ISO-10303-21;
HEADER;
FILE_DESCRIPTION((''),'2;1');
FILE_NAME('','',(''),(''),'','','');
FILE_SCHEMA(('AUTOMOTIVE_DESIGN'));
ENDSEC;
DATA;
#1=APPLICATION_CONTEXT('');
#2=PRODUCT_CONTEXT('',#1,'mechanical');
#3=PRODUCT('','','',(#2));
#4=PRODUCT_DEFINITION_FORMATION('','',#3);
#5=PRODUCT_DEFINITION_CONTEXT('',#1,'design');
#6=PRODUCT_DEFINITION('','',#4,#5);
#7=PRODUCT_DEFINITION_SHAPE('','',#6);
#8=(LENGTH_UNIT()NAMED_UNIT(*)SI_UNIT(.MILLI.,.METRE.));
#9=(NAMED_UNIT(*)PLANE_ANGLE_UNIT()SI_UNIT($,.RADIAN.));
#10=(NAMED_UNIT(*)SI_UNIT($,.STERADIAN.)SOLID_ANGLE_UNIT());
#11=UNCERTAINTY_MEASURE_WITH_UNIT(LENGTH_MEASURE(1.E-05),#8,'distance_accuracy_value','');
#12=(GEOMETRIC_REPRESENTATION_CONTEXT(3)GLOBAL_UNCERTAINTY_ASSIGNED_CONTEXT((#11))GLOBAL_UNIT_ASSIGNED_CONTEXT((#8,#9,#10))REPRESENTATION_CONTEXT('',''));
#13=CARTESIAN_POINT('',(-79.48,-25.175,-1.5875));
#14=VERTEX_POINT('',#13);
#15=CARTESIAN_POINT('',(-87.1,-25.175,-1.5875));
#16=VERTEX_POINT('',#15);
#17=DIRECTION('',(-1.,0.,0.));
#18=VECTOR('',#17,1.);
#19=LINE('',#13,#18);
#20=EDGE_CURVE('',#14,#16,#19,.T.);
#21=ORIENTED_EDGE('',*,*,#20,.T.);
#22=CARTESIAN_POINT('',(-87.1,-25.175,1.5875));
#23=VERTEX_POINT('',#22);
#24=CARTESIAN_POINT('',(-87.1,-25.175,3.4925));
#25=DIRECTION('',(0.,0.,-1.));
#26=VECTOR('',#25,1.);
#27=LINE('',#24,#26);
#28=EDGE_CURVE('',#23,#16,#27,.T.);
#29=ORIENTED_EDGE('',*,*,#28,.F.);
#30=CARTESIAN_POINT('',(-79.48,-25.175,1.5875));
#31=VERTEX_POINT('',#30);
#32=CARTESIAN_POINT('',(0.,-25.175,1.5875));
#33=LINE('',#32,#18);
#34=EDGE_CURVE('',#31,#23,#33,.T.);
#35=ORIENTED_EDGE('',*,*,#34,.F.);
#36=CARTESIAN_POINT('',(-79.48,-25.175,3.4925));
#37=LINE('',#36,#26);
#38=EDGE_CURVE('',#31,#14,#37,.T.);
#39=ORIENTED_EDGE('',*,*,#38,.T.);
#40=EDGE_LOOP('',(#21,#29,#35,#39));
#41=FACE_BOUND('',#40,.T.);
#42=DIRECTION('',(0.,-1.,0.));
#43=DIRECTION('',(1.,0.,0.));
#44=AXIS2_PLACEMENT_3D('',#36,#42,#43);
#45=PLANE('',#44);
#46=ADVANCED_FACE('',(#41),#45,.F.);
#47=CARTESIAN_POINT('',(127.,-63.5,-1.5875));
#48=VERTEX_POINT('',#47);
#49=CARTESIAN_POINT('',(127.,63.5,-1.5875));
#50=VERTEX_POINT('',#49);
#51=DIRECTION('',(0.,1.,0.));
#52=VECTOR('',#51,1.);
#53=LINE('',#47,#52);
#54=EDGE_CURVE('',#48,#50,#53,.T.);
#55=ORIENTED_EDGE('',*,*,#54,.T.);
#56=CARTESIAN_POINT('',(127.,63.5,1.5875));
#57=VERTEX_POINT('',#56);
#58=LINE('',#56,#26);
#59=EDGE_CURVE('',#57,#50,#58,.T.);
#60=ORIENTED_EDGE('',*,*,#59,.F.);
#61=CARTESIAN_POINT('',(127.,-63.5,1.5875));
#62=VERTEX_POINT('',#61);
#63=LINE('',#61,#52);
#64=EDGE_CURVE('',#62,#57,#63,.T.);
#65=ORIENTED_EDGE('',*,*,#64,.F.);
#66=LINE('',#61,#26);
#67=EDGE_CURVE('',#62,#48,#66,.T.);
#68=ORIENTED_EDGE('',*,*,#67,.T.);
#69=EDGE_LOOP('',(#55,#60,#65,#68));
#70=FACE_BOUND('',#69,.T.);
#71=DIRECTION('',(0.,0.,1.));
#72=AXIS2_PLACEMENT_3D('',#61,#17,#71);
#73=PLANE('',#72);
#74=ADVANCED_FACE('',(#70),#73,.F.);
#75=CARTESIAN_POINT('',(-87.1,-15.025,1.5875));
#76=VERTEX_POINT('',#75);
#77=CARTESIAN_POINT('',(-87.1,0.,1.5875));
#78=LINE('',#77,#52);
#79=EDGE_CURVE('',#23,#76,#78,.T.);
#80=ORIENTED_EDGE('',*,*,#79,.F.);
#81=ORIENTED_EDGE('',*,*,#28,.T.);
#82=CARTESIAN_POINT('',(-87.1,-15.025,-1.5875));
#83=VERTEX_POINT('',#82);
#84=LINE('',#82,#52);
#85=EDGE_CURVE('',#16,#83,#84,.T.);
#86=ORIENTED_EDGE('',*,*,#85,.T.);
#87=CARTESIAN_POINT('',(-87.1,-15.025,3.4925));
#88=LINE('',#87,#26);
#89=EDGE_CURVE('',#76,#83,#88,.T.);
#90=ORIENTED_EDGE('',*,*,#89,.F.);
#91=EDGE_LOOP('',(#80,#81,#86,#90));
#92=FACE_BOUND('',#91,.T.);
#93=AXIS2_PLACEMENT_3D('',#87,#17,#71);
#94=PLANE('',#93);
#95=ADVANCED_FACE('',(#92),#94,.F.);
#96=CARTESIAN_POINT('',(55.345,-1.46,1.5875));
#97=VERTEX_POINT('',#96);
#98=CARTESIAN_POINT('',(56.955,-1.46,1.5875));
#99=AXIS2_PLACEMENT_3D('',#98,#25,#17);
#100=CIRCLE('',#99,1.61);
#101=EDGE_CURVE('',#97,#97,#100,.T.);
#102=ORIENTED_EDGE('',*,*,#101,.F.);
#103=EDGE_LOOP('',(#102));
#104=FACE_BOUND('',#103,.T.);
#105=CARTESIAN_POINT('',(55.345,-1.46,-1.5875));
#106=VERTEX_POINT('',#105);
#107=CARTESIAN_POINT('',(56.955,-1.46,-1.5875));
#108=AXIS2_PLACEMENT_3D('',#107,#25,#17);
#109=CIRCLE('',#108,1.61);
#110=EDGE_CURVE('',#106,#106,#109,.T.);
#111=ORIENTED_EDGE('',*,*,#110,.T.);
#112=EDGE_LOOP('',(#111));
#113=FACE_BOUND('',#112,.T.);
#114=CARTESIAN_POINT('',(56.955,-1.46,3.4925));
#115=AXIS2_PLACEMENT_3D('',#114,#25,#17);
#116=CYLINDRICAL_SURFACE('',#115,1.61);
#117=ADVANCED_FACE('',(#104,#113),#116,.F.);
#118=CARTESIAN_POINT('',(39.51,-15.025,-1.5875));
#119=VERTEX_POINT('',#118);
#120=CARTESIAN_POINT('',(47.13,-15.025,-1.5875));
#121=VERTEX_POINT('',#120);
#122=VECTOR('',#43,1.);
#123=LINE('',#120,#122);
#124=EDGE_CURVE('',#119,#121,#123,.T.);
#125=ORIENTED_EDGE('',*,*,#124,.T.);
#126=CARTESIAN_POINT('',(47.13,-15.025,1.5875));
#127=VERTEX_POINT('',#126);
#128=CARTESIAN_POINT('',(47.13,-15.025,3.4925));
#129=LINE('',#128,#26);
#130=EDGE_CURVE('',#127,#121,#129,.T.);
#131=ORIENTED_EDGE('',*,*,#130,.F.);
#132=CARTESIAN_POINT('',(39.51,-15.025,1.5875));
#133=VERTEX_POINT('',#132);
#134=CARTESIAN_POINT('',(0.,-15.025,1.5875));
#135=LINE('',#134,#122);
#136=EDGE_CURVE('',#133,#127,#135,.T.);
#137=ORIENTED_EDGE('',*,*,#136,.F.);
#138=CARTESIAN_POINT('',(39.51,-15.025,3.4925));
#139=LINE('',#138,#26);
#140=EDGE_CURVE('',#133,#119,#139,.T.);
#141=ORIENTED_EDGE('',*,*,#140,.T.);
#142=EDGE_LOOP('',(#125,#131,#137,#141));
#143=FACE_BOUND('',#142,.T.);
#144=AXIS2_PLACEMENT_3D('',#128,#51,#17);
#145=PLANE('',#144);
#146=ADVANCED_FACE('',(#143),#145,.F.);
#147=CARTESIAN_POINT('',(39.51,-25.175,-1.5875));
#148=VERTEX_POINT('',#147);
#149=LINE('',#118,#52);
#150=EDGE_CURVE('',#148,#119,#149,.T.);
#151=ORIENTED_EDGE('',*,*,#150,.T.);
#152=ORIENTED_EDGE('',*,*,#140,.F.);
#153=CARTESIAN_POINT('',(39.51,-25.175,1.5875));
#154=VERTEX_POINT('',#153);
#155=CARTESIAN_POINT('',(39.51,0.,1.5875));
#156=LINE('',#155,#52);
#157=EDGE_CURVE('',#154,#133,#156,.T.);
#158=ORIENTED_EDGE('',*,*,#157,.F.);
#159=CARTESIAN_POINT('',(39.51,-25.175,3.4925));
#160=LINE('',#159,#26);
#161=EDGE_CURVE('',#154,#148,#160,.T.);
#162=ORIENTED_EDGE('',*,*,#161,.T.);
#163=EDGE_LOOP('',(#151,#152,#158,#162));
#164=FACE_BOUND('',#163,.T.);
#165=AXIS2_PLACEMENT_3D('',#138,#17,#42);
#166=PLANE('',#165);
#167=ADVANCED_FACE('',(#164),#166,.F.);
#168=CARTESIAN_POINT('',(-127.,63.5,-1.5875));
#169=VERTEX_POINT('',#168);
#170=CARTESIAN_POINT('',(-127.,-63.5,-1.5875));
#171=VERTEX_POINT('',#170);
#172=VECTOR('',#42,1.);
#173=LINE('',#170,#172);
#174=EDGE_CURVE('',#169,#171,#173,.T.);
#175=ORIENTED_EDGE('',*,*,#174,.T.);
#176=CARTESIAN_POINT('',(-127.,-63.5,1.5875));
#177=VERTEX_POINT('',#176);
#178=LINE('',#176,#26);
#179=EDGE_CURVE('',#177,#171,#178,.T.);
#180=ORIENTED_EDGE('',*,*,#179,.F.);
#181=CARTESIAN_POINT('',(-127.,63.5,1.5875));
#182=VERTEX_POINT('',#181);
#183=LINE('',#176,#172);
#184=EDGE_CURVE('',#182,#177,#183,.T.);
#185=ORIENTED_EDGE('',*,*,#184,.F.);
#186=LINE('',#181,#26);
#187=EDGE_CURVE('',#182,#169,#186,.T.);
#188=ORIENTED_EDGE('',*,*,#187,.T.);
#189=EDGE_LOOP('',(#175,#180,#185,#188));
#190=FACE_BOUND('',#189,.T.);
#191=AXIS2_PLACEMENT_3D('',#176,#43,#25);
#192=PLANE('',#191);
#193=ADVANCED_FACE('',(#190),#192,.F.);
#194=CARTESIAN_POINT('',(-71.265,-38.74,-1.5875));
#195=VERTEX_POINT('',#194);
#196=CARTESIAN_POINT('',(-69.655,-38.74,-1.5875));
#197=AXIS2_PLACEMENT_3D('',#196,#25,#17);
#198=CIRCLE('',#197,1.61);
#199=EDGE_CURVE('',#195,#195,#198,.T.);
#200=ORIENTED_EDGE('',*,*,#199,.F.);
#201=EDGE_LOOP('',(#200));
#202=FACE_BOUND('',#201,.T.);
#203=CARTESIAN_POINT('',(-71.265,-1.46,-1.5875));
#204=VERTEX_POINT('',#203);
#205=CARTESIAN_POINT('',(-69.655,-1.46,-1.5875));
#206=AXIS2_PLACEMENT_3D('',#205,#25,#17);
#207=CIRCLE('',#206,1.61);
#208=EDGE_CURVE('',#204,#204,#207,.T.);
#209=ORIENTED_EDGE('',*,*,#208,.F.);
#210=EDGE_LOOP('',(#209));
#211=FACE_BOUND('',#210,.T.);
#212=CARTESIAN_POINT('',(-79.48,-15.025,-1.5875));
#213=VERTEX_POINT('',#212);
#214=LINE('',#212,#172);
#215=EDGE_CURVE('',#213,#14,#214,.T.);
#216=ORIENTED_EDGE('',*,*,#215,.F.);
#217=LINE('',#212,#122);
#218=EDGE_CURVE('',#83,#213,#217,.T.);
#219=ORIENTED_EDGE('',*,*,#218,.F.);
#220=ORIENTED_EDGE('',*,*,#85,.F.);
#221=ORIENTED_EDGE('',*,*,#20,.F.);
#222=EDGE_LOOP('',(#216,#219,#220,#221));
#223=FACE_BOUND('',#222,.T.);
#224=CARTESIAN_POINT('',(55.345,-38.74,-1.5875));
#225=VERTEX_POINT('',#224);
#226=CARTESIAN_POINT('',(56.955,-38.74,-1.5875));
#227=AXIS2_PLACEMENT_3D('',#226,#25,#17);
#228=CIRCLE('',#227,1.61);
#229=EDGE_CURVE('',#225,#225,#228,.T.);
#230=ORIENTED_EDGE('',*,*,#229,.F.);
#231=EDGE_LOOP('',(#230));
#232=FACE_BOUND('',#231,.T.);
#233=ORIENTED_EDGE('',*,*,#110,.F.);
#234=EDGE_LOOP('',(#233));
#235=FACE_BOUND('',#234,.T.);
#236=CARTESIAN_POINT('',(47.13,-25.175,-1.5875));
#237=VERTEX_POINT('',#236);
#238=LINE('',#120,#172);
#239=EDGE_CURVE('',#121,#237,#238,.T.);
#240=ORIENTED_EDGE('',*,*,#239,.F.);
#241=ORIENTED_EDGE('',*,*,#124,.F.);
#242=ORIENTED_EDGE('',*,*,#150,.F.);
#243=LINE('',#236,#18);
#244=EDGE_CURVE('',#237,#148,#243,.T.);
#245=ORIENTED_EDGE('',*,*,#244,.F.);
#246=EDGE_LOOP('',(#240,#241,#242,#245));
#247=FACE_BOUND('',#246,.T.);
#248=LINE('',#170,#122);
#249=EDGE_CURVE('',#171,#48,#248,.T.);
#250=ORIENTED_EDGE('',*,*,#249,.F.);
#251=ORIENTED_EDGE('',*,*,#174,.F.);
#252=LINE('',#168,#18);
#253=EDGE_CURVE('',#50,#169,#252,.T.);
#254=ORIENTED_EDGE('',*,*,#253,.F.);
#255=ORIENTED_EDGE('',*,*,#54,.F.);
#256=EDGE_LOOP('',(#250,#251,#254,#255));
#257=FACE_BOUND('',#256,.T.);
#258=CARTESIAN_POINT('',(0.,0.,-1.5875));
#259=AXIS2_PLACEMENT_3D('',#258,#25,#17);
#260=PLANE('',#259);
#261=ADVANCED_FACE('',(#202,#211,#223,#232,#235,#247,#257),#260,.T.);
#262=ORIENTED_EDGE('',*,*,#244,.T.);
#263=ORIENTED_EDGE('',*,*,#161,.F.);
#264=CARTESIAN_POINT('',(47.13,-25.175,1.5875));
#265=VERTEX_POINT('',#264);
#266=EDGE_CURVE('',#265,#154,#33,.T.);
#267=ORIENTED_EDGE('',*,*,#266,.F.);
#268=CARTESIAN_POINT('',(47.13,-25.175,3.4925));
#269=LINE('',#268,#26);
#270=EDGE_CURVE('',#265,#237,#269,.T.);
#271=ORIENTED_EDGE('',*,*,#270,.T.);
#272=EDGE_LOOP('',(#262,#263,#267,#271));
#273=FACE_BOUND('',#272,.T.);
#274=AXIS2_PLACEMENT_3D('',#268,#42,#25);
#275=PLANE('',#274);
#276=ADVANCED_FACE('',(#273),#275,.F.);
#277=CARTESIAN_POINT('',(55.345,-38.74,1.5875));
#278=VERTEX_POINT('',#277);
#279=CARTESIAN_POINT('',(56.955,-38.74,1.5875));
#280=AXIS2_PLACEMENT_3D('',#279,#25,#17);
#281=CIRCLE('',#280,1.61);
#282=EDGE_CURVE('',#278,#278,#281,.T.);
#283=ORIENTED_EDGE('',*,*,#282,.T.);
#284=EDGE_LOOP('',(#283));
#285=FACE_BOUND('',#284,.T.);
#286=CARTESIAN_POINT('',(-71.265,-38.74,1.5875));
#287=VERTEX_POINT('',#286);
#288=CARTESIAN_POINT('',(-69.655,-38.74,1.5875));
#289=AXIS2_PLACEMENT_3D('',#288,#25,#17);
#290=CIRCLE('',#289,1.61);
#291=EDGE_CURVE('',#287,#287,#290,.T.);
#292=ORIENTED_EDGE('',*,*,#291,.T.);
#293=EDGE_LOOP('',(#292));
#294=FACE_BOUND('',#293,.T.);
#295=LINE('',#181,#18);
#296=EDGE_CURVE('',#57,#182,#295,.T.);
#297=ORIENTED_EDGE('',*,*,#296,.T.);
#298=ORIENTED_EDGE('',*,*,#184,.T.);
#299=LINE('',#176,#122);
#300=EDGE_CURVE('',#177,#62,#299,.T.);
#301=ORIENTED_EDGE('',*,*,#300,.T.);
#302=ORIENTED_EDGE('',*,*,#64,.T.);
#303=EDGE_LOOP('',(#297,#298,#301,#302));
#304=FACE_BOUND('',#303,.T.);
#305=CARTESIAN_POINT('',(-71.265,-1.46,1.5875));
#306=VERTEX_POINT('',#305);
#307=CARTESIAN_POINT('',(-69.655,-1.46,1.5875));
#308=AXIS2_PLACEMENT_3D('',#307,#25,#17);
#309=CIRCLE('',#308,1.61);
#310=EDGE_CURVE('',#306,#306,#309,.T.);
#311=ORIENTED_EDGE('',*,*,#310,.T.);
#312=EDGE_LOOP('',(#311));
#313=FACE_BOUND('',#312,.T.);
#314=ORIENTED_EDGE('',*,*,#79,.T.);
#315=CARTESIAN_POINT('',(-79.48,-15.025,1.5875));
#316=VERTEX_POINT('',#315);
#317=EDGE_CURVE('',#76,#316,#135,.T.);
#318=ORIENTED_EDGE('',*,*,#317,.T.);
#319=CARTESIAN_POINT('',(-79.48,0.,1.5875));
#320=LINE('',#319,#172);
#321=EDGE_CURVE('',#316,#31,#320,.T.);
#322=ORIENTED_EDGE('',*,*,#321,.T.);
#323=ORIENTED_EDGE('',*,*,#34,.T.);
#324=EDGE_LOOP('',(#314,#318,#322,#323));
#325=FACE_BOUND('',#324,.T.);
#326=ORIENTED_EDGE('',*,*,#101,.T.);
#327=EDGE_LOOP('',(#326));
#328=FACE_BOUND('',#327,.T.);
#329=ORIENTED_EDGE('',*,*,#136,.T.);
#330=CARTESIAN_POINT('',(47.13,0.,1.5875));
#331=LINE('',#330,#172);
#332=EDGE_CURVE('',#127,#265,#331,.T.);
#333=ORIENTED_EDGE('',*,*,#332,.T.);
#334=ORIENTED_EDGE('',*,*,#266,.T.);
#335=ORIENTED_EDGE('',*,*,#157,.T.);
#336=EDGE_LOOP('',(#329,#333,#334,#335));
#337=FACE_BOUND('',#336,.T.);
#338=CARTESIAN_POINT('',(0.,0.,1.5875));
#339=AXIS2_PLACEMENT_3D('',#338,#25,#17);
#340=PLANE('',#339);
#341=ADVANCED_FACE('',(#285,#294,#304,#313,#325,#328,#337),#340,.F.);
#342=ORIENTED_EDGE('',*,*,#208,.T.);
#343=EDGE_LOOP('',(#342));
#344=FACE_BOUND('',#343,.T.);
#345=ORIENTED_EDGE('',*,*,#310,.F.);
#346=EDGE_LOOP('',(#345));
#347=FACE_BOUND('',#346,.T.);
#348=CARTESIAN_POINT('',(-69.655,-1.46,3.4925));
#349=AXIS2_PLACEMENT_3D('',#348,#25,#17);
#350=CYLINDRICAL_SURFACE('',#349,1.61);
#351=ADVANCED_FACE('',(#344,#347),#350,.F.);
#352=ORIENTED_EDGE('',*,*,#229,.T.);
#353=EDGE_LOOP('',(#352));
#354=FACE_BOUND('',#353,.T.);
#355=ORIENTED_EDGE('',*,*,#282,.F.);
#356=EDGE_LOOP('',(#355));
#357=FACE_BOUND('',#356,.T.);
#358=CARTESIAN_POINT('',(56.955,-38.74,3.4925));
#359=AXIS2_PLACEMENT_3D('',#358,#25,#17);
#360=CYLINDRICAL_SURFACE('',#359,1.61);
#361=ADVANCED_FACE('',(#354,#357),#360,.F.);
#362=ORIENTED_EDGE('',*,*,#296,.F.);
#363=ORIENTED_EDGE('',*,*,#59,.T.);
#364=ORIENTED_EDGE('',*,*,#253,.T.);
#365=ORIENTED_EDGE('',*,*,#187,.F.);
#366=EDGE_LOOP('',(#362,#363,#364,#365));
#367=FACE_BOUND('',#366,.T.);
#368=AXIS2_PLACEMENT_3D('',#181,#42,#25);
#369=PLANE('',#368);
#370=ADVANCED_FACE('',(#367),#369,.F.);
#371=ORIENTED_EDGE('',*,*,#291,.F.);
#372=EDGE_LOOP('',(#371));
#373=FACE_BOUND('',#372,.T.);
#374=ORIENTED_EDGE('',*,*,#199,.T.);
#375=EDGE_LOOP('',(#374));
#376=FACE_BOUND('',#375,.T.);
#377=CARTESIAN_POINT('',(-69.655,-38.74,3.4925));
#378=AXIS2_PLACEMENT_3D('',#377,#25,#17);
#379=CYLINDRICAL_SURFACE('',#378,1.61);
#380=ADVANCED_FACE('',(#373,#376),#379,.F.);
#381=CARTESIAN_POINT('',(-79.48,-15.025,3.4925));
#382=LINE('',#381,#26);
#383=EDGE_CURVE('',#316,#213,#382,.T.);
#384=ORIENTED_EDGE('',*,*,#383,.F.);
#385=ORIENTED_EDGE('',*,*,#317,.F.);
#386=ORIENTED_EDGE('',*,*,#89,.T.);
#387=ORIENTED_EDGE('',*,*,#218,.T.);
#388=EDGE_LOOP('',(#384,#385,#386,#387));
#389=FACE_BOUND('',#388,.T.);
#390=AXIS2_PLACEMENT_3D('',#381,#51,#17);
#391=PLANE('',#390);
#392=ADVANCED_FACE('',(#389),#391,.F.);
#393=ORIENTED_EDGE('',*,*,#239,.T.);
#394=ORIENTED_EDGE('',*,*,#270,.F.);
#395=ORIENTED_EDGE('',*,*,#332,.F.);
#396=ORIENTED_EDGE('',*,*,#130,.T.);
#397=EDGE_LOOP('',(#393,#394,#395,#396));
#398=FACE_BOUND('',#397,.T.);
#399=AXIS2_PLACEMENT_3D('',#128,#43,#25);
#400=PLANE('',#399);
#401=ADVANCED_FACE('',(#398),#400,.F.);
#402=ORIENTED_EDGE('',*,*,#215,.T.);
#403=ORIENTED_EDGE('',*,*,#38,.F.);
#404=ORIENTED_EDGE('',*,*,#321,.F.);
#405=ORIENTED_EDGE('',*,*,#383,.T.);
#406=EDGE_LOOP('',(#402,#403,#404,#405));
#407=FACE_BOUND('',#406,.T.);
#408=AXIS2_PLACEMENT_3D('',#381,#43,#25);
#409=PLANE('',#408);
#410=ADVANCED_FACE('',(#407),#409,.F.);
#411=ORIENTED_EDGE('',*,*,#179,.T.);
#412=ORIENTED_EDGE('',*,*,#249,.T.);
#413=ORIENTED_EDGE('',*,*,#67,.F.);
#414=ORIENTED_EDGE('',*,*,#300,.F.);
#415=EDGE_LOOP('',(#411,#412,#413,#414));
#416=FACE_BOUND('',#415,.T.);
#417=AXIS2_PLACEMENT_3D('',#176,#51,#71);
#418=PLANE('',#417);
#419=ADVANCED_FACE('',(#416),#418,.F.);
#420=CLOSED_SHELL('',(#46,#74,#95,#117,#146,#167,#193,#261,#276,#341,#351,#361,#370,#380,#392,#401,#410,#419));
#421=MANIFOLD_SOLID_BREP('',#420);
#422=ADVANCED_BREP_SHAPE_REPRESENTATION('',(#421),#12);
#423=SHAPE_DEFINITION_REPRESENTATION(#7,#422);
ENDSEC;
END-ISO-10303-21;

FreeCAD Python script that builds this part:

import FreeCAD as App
import Part
import Sketcher

V = App.Vector
Q = App.Units.Quantity

doc = App.newDocument("Part")
params = doc.addObject("Spreadsheet::Sheet", "Params")
for row, (alias, value) in enumerate([
    ("sketch1_width", "10 in"),
    ("sketch1_height", "5 in"),
    ("pad1_length", "0.125 in"),
    ("sketch2_width", "0.3 in"),
    ("pocket1_length", "0.2 in"),
], start=1):
    params.set(f"A{row}", alias)
    params.set(f"B{row}", "=" + value)
    params.setAlias(f"B{row}", alias)

body = doc.addObject("PartDesign::Body", "Body")

# Sketch on XY plane
sketch1 = body.newObject("Sketcher::SketchObject", "Sketch")
sketch1.AttachmentSupport = (doc.getObject("XY_Plane"), [""])
sketch1.MapMode = "FlatFace"
sketch1.addGeometry(Part.LineSegment(V(-127, 63.5, 0), V(-127, -63.5, 0)), False)
sketch1.addGeometry(Part.LineSegment(V(-127, -63.5, 0), V(127, -63.5, 0)), False)
sketch1.addGeometry(Part.LineSegment(V(127, -63.5, 0), V(127, 63.5, 0)), False)
sketch1.addGeometry(Part.LineSegment(V(127, 63.5, 0), V(-127, 63.5, 0)), False)
sketch1.addConstraint(Sketcher.Constraint("Coincident", 0, 2, 1, 1))
sketch1.addConstraint(Sketcher.Constraint("Coincident", 1, 2, 2, 1))
sketch1.addConstraint(Sketcher.Constraint("Coincident", 2, 2, 3, 1))
sketch1.addConstraint(Sketcher.Constraint("Coincident", 3, 2, 0, 1))
sketch1.addConstraint(Sketcher.Constraint("Vertical", 0))
sketch1.addConstraint(Sketcher.Constraint("Horizontal", 1))
sketch1.addConstraint(Sketcher.Constraint("Vertical", 2))
sketch1.addConstraint(Sketcher.Constraint("Horizontal", 3))
sketch1.addConstraint(Sketcher.Constraint("Symmetric", 0, 2, 2, 2, -1, 1))
sketch1.addConstraint(Sketcher.Constraint("DistanceX", 1, 1, 1, 2, Q("10 in")))
sketch1.addConstraint(Sketcher.Constraint("DistanceY", 0, 2, 0, 1, Q("5 in")))
sketch1.setExpression("Constraints[9]", "Params.sketch1_width")
sketch1.setExpression("Constraints[10]", "Params.sketch1_height")
pad1 = body.newObject("PartDesign::Pad", "Pad")
pad1.Profile = sketch1
pad1.setExpression("Length", "Params.pad1_length")
pad1.Midplane = True

# Sketch on XY plane
sketch2 = body.newObject("Sketcher::SketchObject", "Sketch001")
sketch2.AttachmentSupport = (doc.getObject("XY_Plane"), [""])
sketch2.MapMode = "FlatFace"
sketch2.AttachmentOffset = App.Placement(V(0, 0, -0.0625 * 25.4), App.Rotation())
sketch2.addGeometry(Part.Circle(V(56.955, -1.46, 0), V(0, 0, 1), 1.61), False)
sketch2.addGeometry(Part.Circle(V(56.955, -38.74, 0), V(0, 0, 1), 1.61), False)
sketch2.addGeometry(Part.Circle(V(-69.655, -38.74, 0), V(0, 0, 1), 1.61), False)
sketch2.addGeometry(Part.Circle(V(-69.655, -1.46, 0), V(0, 0, 1), 1.61), False)
sketch2.addGeometry(Part.LineSegment(V(47.13, -15.025, 0), V(47.13, -25.175, 0)), False)
sketch2.addGeometry(Part.LineSegment(V(47.13, -25.175, 0), V(39.51, -25.175, 0)), False)
sketch2.addGeometry(Part.LineSegment(V(39.51, -25.175, 0), V(39.51, -15.025, 0)), False)
sketch2.addGeometry(Part.LineSegment(V(39.51, -15.025, 0), V(47.13, -15.025, 0)), False)
sketch2.addGeometry(Part.LineSegment(V(-79.48, -15.025, 0), V(-79.48, -25.175, 0)), False)
sketch2.addGeometry(Part.LineSegment(V(-79.48, -25.175, 0), V(-87.1, -25.175, 0)), False)
sketch2.addGeometry(Part.LineSegment(V(-87.1, -25.175, 0), V(-87.1, -15.025, 0)), False)
sketch2.addGeometry(Part.LineSegment(V(-87.1, -15.025, 0), V(-79.48, -15.025, 0)), False)
sketch2.addConstraint(Sketcher.Constraint("Coincident", 4, 2, 5, 1))
sketch2.addConstraint(Sketcher.Constraint("Coincident", 5, 2, 6, 1))
sketch2.addConstraint(Sketcher.Constraint("Coincident", 6, 2, 7, 1))
sketch2.addConstraint(Sketcher.Constraint("Coincident", 7, 2, 4, 1))
sketch2.addConstraint(Sketcher.Constraint("Coincident", 8, 2, 9, 1))
sketch2.addConstraint(Sketcher.Constraint("Coincident", 9, 2, 10, 1))
sketch2.addConstraint(Sketcher.Constraint("Coincident", 10, 2, 11, 1))
sketch2.addConstraint(Sketcher.Constraint("Coincident", 11, 2, 8, 1))
sketch2.addConstraint(Sketcher.Constraint("Vertical", 4))
sketch2.addConstraint(Sketcher.Constraint("Horizontal", 5))
sketch2.addConstraint(Sketcher.Constraint("Vertical", 6))
sketch2.addConstraint(Sketcher.Constraint("Horizontal", 7))
sketch2.addConstraint(Sketcher.Constraint("Vertical", 8))
sketch2.addConstraint(Sketcher.Constraint("Horizontal", 9))
sketch2.addConstraint(Sketcher.Constraint("Vertical", 10))
sketch2.addConstraint(Sketcher.Constraint("Horizontal", 11))
sketch2.addConstraint(Sketcher.Constraint("Equal", 0, 1))
sketch2.addConstraint(Sketcher.Constraint("Equal", 1, 2))
sketch2.addConstraint(Sketcher.Constraint("Equal", 2, 3))
sketch2.addConstraint(Sketcher.Constraint("Horizontal", 1, 3, 2, 3))
sketch2.addConstraint(Sketcher.Constraint("Horizontal", 0, 3, 3, 3))
sketch2.addConstraint(Sketcher.Constraint("Horizontal", 5, 2, 8, 2))
sketch2.addConstraint(Sketcher.Constraint("Horizontal", 7, 2, 10, 2))
sketch2.addConstraint(Sketcher.Constraint("Vertical", 0, 3, 1, 3))
sketch2.addConstraint(Sketcher.Constraint("Vertical", 2, 3, 3, 3))
sketch2.addConstraint(Sketcher.Constraint("Equal", 7, 9))
sketch2.addConstraint(Sketcher.Constraint("DistanceX", 5, 2, 5, 1, Q("0.3 in")))
sketch2.addConstraint(Sketcher.Constraint("Diameter", 0, 3.22))
sketch2.addConstraint(Sketcher.Constraint("DistanceY", 4, 2, 4, 1, 10.15))
sketch2.addConstraint(Sketcher.Constraint("DistanceX", -1, 1, 0, 3, 56.955))
sketch2.addConstraint(Sketcher.Constraint("DistanceY", 0, 3, -1, 1, 1.46))
sketch2.addConstraint(Sketcher.Constraint("DistanceY", 1, 3, -1, 1, 38.74))
sketch2.addConstraint(Sketcher.Constraint("DistanceX", 2, 3, -1, 1, 69.655))
sketch2.addConstraint(Sketcher.Constraint("DistanceX", -1, 1, 4, 2, 47.13))
sketch2.addConstraint(Sketcher.Constraint("DistanceY", 4, 2, -1, 1, 25.175))
sketch2.addConstraint(Sketcher.Constraint("DistanceX", 8, 2, -1, 1, 79.48))
sketch2.setExpression("Constraints[26]", "Params.sketch2_width")
pocket1 = body.newObject("PartDesign::Pocket", "Pocket")
pocket1.Profile = sketch2
pocket1.setExpression("Length", "Params.pocket1_length")
pocket1.Reversed = True

doc.recompute()
